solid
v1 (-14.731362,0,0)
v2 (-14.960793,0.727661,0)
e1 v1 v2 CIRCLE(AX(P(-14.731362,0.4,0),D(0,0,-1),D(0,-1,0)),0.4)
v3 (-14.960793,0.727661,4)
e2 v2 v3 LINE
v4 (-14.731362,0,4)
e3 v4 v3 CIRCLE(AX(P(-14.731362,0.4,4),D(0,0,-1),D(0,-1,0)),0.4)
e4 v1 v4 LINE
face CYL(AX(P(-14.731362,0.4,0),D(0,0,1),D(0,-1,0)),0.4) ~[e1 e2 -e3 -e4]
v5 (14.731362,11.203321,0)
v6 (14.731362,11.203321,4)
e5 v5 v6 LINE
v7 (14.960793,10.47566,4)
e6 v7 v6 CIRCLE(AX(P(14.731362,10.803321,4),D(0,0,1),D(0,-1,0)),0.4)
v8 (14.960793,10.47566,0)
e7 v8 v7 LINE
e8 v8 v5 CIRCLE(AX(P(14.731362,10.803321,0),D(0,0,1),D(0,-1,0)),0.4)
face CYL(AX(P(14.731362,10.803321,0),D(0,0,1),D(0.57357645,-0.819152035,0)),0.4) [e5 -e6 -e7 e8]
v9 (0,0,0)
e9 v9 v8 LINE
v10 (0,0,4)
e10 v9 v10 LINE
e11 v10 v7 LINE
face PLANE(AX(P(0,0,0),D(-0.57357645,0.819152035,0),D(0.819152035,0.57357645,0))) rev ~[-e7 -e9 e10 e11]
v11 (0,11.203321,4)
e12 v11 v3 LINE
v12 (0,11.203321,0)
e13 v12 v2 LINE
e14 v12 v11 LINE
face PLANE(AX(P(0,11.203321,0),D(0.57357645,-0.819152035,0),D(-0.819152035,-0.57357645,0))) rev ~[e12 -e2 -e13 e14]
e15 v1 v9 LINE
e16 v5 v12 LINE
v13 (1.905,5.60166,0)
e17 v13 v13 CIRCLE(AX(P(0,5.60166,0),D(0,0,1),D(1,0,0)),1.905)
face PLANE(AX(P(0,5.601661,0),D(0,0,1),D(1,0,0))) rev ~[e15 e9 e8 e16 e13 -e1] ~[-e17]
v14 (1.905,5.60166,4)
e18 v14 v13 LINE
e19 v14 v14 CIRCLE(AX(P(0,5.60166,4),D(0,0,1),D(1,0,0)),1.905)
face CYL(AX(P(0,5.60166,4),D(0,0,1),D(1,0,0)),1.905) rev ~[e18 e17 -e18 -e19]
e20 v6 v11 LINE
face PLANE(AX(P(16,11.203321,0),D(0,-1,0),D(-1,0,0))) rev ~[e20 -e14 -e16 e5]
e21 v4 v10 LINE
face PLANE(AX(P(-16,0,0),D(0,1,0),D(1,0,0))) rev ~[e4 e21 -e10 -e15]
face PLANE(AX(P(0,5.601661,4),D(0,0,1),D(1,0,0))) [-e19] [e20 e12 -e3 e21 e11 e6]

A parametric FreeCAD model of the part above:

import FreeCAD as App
import Part
import Sketcher
Q = App.Units.Quantity


def edges_at(feature, points):
    """Names of the edges that pass closest to the given points."""
    edges = feature.Shape.Edges
    near = lambda p: min(range(len(edges)), key=lambda i: edges[i].distToShape(Part.Vertex(*p))[0])
    return sorted({f"Edge{near(p) + 1}" for p in points})


def add_polygon(sketch, points):
    """Adds a closed chain of lines whose ends are joined by coincident constraints."""
    first, n = sketch.GeometryCount, len(points)
    for a, b in zip(points, points[1:] + points[:1]):
        sketch.addGeometry(Part.LineSegment(App.Vector(*a, 0), App.Vector(*b, 0)), False)
    for i in range(n):
        sketch.addConstraint(Sketcher.Constraint("Coincident", first + i, 2, first + (i + 1) % n, 1))

doc = App.newDocument("Part")
body = doc.addObject("PartDesign::Body", "Body")

# Sketch on XY plane
sketch1 = body.newObject("Sketcher::SketchObject", "Sketch")
sketch1.AttachmentSupport = (doc.getObject("XY_Plane"), [""])
sketch1.MapMode = "FlatFace"
add_polygon(sketch1, [(-16, 0), (0, 0), (16, 11), (0, 11)])  # lines 0-3
sketch1.addConstraint([
    Sketcher.Constraint("Horizontal", 0),
    Sketcher.Constraint("Horizontal", 2),
    Sketcher.Constraint("Coincident", 0, 2, -1, 1),
    Sketcher.Constraint("PointOnObject", 2, 2, -2),
    Sketcher.Constraint("Parallel", 1, 3),
    Sketcher.Constraint("DistanceX", 0, 1, 0, 2, Q("16 mm")),
    Sketcher.Constraint("Angle", 1, Q("35.000001 deg")),
])
pad1 = body.newObject("PartDesign::Pad", "Pad")
pad1.Profile = sketch1
pad1.Length = 4
doc.recompute()

fillet = body.newObject("PartDesign::Fillet", "Fillet")
fillet.Base = (pad1, edges_at(pad1, [(-16, 0, 2), (16, 11.203, 2)]))
fillet.Radius = 0.4

# Sketch on XY plane
sketch2 = body.newObject("Sketcher::SketchObject", "Sketch001")
sketch2.AttachmentSupport = (doc.getObject("XY_Plane"), [""])
sketch2.MapMode = "FlatFace"
sketch2.AttachmentOffset = App.Placement(App.Vector(0, 0, 4), App.Rotation())
sketch2.addGeometry(Part.Circle(App.Vector(0, 5.6, 0), App.Vector(0, 0, 1), 1.9), False)
sketch2.addConstraint([
    Sketcher.Constraint("PointOnObject", 0, 3, -2),
    Sketcher.Constraint("Diameter", 0, Q("3.81 mm")),
    Sketcher.Constraint("DistanceY", -1, 1, 0, 3, Q("5.60166 mm")),
])
pocket1 = body.newObject("PartDesign::Pocket", "Pocket")
pocket1.Profile = sketch2
pocket1.Type = "ThroughAll"

doc.recompute()
